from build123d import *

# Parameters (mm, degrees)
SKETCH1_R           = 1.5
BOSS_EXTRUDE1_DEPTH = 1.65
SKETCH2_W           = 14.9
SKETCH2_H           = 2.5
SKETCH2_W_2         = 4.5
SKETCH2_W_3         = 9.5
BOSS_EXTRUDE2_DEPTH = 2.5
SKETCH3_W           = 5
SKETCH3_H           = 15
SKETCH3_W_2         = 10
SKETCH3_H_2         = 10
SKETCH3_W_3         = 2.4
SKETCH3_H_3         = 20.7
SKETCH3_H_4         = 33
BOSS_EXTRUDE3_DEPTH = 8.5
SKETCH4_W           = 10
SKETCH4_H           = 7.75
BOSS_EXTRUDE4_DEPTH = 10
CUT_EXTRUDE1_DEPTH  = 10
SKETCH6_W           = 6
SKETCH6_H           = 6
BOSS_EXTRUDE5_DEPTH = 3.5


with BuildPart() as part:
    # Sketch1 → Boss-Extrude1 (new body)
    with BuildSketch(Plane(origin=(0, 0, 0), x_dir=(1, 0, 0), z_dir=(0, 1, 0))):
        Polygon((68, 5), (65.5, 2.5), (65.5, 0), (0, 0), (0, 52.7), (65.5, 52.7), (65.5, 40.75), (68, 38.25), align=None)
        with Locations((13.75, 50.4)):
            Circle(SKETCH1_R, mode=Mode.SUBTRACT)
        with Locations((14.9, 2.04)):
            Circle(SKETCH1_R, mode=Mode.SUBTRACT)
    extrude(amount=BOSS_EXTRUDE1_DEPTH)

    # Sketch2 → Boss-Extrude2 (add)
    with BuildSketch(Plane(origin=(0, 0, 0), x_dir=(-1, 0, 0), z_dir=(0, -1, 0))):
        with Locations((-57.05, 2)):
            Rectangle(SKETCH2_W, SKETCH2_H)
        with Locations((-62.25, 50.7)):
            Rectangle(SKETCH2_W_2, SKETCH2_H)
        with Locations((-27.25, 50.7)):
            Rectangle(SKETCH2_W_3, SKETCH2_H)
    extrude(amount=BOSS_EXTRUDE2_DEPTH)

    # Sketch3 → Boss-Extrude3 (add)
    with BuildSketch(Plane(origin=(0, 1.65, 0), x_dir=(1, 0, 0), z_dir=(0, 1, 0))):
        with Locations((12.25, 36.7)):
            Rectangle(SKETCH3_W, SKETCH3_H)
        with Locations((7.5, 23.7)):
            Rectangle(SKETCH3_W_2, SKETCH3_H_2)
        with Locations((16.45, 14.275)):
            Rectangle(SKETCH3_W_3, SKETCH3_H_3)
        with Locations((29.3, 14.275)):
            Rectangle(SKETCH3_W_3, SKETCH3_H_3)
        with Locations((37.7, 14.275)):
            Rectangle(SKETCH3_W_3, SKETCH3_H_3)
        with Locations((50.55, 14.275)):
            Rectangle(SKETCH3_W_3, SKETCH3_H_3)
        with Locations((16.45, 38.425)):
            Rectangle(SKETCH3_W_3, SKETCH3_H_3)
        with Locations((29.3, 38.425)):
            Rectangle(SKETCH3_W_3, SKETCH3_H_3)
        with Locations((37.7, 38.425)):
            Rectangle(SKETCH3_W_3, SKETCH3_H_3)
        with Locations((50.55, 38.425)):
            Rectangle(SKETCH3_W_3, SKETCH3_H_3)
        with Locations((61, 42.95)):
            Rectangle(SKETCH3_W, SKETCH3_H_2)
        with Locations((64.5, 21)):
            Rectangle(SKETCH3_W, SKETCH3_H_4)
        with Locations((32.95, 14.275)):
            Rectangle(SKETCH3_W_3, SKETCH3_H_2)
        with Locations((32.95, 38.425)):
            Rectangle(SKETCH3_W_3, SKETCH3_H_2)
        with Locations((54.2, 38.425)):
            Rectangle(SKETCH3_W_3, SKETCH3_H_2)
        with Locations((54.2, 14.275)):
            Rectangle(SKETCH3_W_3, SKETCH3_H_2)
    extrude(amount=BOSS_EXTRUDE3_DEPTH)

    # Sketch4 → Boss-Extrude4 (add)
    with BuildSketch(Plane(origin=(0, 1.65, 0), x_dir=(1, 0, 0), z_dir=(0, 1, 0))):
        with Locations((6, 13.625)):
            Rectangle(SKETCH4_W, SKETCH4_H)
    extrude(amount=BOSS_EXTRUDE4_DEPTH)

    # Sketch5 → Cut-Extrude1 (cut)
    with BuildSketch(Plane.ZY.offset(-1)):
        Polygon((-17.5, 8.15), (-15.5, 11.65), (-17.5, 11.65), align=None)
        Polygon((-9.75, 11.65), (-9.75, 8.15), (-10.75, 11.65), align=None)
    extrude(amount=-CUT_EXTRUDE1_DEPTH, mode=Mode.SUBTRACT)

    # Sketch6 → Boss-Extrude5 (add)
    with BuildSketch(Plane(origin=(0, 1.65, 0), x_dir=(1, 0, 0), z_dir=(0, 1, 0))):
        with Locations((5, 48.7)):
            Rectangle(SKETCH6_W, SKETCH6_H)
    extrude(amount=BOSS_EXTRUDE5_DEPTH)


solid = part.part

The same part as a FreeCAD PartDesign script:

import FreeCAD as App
import Part
import Sketcher

V = App.Vector


def add_polygon(sketch, points):
    """Adds a closed chain of lines whose ends are joined by coincident constraints."""
    first, n = sketch.GeometryCount, len(points)
    for a, b in zip(points, points[1:] + points[:1]):
        sketch.addGeometry(Part.LineSegment(App.Vector(*a, 0), App.Vector(*b, 0)), False)
    for i in range(n):
        sketch.addConstraint(Sketcher.Constraint("Coincident", first + i, 2, first + (i + 1) % n, 1))

doc = App.newDocument("Part")
body = doc.addObject("PartDesign::Body", "Body")

# Sketch on XZ plane
sketch1 = body.newObject("Sketcher::SketchObject", "Sketch")
sketch1.AttachmentSupport = (doc.getObject("XZ_Plane"), [""])
sketch1.MapMode = "FlatFace"
add_polygon(sketch1, [(65.5, -2.5), (68, -5), (68, -38.25), (65.5, -40.75), (65.5, -52.7), (0, -52.7), (0, 0), (65.5, 0)])  # lines 0-7
sketch1.addGeometry(Part.Circle(V(14.9, -2.04, 0), V(0, 0, 1), 1.5), False)  # 8
sketch1.addGeometry(Part.Circle(V(13.75, -50.4, 0), V(0, 0, 1), 1.5), False)  # 9
sketch1.addConstraint([
    Sketcher.Constraint("Vertical", 1),
    Sketcher.Constraint("Vertical", 3),
    Sketcher.Constraint("Horizontal", 4),
    Sketcher.Constraint("Vertical", 5),
    Sketcher.Constraint("Horizontal", 6),
    Sketcher.Constraint("Vertical", 7),
    Sketcher.Constraint("Coincident", 5, 2, -1, 1),
    Sketcher.Constraint("Equal", 8, 9),
    Sketcher.Constraint("Perpendicular", 0, 2),
    Sketcher.Constraint("Vertical", 3, 2, 6, 2),
    Sketcher.Constraint("Equal", 0, 2),
    Sketcher.Constraint("Diameter", 8, 3.0),
    Sketcher.Constraint("DistanceX", 4, 2, 4, 1, 65.5),
    Sketcher.Constraint("DistanceY", 5, 1, 5, 2, 52.7),
    Sketcher.Constraint("DistanceY", 7, 2, 7, 1, 2.5),
    Sketcher.Constraint("DistanceX", -1, 1, 0, 2, 68.0),
    Sketcher.Constraint("DistanceY", 1, 2, 1, 1, 33.25),
    Sketcher.Constraint("DistanceX", -1, 1, 8, 3, 14.9),
    Sketcher.Constraint("DistanceY", 9, 3, -1, 1, 50.4),
    Sketcher.Constraint("DistanceY", 8, 3, -1, 1, 2.04),
    Sketcher.Constraint("DistanceX", -1, 1, 9, 3, 13.75),
])
pad1 = body.newObject("PartDesign::Pad", "Pad")
pad1.Profile = sketch1
pad1.Length = 1.65
pad1.Reversed = True

# Sketch on XZ plane
sketch2 = body.newObject("Sketcher::SketchObject", "Sketch001")
sketch2.AttachmentSupport = (doc.getObject("XZ_Plane"), [""])
sketch2.MapMode = "FlatFace"
add_polygon(sketch2, [(64.5, -3.25), (64.5, -0.75), (49.6, -0.75), (49.6, -3.25)])  # lines 0-3
add_polygon(sketch2, [(64.5, -51.95), (64.5, -49.45), (60, -49.45), (60, -51.95)])  # lines 4-7
add_polygon(sketch2, [(32, -51.95), (32, -49.45), (22.5, -49.45), (22.5, -51.95)])  # lines 8-11
sketch2.addConstraint([
    Sketcher.Constraint("Vertical", 0),
    Sketcher.Constraint("Horizontal", 1),
    Sketcher.Constraint("Vertical", 2),
    Sketcher.Constraint("Horizontal", 3),
    Sketcher.Constraint("Vertical", 4),
    Sketcher.Constraint("Horizontal", 5),
    Sketcher.Constraint("Vertical", 6),
    Sketcher.Constraint("Horizontal", 7),
    Sketcher.Constraint("Vertical", 8),
    Sketcher.Constraint("Horizontal", 9),
    Sketcher.Constraint("Vertical", 10),
    Sketcher.Constraint("Horizontal", 11),
    Sketcher.Constraint("Horizontal", 5, 2, 8, 2),
    Sketcher.Constraint("Horizontal", 7, 2, 10, 2),
    Sketcher.Constraint("Vertical", 3, 2, 4, 2),
    Sketcher.Constraint("Equal", 2, 4),
    Sketcher.Constraint("DistanceX", 1, 2, 1, 1, 14.9),
    Sketcher.Constraint("DistanceX", 5, 2, 5, 1, 4.5),
    Sketcher.Constraint("DistanceX", 9, 2, 9, 1, 9.5),
    Sketcher.Constraint("DistanceY", 0, 1, 0, 2, 2.5),
    Sketcher.Constraint("DistanceX", -1, 1, 5, 2, 60.0),
    Sketcher.Constraint("DistanceX", -1, 1, 8, 2, 32.0),
    Sketcher.Constraint("DistanceY", 4, 2, 3, 2, 46.2),
    Sketcher.Constraint("DistanceY", 0, 2, -1, 1, 0.75),
])
pad2 = body.newObject("PartDesign::Pad", "Pad001")
pad2.Profile = sketch2
pad2.Length = 2.5

# Sketch on XZ plane
sketch3 = body.newObject("Sketcher::SketchObject", "Sketch002")
sketch3.AttachmentSupport = (doc.getObject("XZ_Plane"), [""])
sketch3.MapMode = "FlatFace"
sketch3.AttachmentOffset = App.Placement(V(0, 0, -1.65), App.Rotation())
add_polygon(sketch3, [(9.75, -44.2), (9.75, -29.2), (14.75, -29.2), (14.75, -44.2)])  # lines 0-3
add_polygon(sketch3, [(2.5, -28.7), (2.5, -18.7), (12.5, -18.7), (12.5, -28.7)])  # lines 4-7
add_polygon(sketch3, [(15.25, -24.625), (15.25, -3.925), (17.65, -3.925), (17.65, -24.625)])  # lines 8-11
add_polygon(sketch3, [(28.1, -24.625), (28.1, -3.925), (30.5, -3.925), (30.5, -24.625)])  # lines 12-15
add_polygon(sketch3, [(36.5, -24.625), (36.5, -3.925), (38.9, -3.925), (38.9, -24.625)])  # lines 16-19
add_polygon(sketch3, [(49.35, -24.625), (49.35, -3.925), (51.75, -3.925), (51.75, -24.625)])  # lines 20-23
add_polygon(sketch3, [(15.25, -48.775), (15.25, -28.075), (17.65, -28.075), (17.65, -48.775)])  # lines 24-27
add_polygon(sketch3, [(28.1, -48.775), (28.1, -28.075), (30.5, -28.075), (30.5, -48.775)])  # lines 28-31
add_polygon(sketch3, [(36.5, -48.775), (36.5, -28.075), (38.9, -28.075), (38.9, -48.775)])  # lines 32-35
add_polygon(sketch3, [(49.35, -48.775), (49.35, -28.075), (51.75, -28.075), (51.75, -48.775)])  # lines 36-39
add_polygon(sketch3, [(58.5, -47.95), (58.5, -37.95), (63.5, -37.95), (63.5, -47.95)])  # lines 40-43
add_polygon(sketch3, [(62, -37.5), (62, -4.5), (67, -4.5), (67, -37.5)])  # lines 44-47
add_polygon(sketch3, [(31.75, -19.275), (31.75, -9.275), (34.15, -9.275), (34.15, -19.275)])  # lines 48-51
add_polygon(sketch3, [(31.75, -43.425), (31.75, -33.425), (34.15, -33.425), (34.15, -43.425)])  # lines 52-55
add_polygon(sketch3, [(53, -43.425), (53, -33.425), (55.4, -33.425), (55.4, -43.425)])  # lines 56-59
add_polygon(sketch3, [(53, -19.275), (53, -9.275), (55.4, -9.275), (55.4, -19.275)])  # lines 60-63
sketch3.addConstraint([
    Sketcher.Constraint("Vertical", 0),
    Sketcher.Constraint("Horizontal", 1),
    Sketcher.Constraint("Vertical", 2),
    Sketcher.Constraint("Horizontal", 3),
    Sketcher.Constraint("Vertical", 4),
    Sketcher.Constraint("Horizontal", 5),
    Sketcher.Constraint("Vertical", 6),
    Sketcher.Constraint("Horizontal", 7),
    Sketcher.Constraint("Vertical", 8),
    Sketcher.Constraint("Horizontal", 9),
    Sketcher.Constraint("Vertical", 10),
    Sketcher.Constraint("Horizontal", 11),
    Sketcher.Constraint("Vertical", 12),
    Sketcher.Constraint("Horizontal", 13),
    Sketcher.Constraint("Vertical", 14),
    Sketcher.Constraint("Horizontal", 15),
    Sketcher.Constraint("Vertical", 16),
    Sketcher.Constraint("Horizontal", 17),
    Sketcher.Constraint("Vertical", 18),
    Sketcher.Constraint("Horizontal", 19),
    Sketcher.Constraint("Vertical", 20),
    Sketcher.Constraint("Horizontal", 21),
    Sketcher.Constraint("Vertical", 22),
    Sketcher.Constraint("Horizontal", 23),
    Sketcher.Constraint("Vertical", 24),
    Sketcher.Constraint("Horizontal", 25),
    Sketcher.Constraint("Vertical", 26),
    Sketcher.Constraint("Horizontal", 27),
    Sketcher.Constraint("Vertical", 28),
    Sketcher.Constraint("Horizontal", 29),
    Sketcher.Constraint("Vertical", 30),
    Sketcher.Constraint("Horizontal", 31),
    Sketcher.Constraint("Vertical", 32),
    Sketcher.Constraint("Horizontal", 33),
    Sketcher.Constraint("Vertical", 34),
    Sketcher.Constraint("Horizontal", 35),
    Sketcher.Constraint("Vertical", 36),
    Sketcher.Constraint("Horizontal", 37),
    Sketcher.Constraint("Vertical", 38),
    Sketcher.Constraint("Horizontal", 39),
    Sketcher.Constraint("Vertical", 40),
    Sketcher.Constraint("Horizontal", 41),
    Sketcher.Constraint("Vertical", 42),
    Sketcher.Constraint("Horizontal", 43),
    Sketcher.Constraint("Vertical", 44),
    Sketcher.Constraint("Horizontal", 45),
    Sketcher.Constraint("Vertical", 46),
    Sketcher.Constraint("Horizontal", 47),
    Sketcher.Constraint("Vertical", 48),
    Sketcher.Constraint("Horizontal", 49),
    Sketcher.Constraint("Vertical", 50),
    Sketcher.Constraint("Horizontal", 51),
    Sketcher.Constraint("Vertical", 52),
    Sketcher.Constraint("Horizontal", 53),
    Sketcher.Constraint("Vertical", 54),
    Sketcher.Constraint("Horizontal", 55),
    Sketcher.Constraint("Vertical", 56),
    Sketcher.Constraint("Horizontal", 57),
    Sketcher.Constraint("Vertical", 58),
    Sketcher.Constraint("Horizontal", 59),
    Sketcher.Constraint("Vertical", 60),
    Sketcher.Constraint("Horizontal", 61),
    Sketcher.Constraint("Vertical", 62),
    Sketcher.Constraint("Horizontal", 63),
    Sketcher.Constraint("Horizontal", 9, 2, 12, 2),
    Sketcher.Constraint("Horizontal", 11, 2, 14, 2),
    Sketcher.Constraint("Horizontal", 13, 2, 16, 2),
    Sketcher.Constraint("Horizontal", 15, 2, 18, 2),
    Sketcher.Constraint("Horizontal", 17, 2, 20, 2),
    Sketcher.Constraint("Horizontal", 19, 2, 22, 2),
    Sketcher.Constraint("Horizontal", 25, 2, 28, 2),
    Sketcher.Constraint("Horizontal", 27, 2, 30, 2),
    Sketcher.Constraint("Horizontal", 29, 2, 32, 2),
    Sketcher.Constraint("Horizontal", 31, 2, 34, 2),
    Sketcher.Constraint("Horizontal", 33, 2, 36, 2),
    Sketcher.Constraint("Horizontal", 35, 2, 38, 2),
    Sketcher.Constraint("Horizontal", 53, 2, 56, 2),
    Sketcher.Constraint("Horizontal", 55, 2, 58, 2),
    Sketcher.Constraint("Horizontal", 49, 2, 60, 2),
    Sketcher.Constraint("Horizontal", 51, 2, 62, 2),
    Sketcher.Constraint("Vertical", 11, 2, 24, 2),
    Sketcher.Constraint("Vertical", 10, 2, 25, 2),
    Sketcher.Constraint("Vertical", 15, 2, 28, 2),
    Sketcher.Constraint("Vertical", 14, 2, 29, 2),
    Sketcher.Constraint("Vertical", 19, 2, 32, 2),
    Sketcher.Constraint("Vertical", 18, 2, 33, 2),
    Sketcher.Constraint("Vertical", 23, 2, 36, 2),
    Sketcher.Constraint("Vertical", 22, 2, 37, 2),
    Sketcher.Constraint("Vertical", 51, 2, 52, 2),
    Sketcher.Constraint("Vertical", 50, 2, 53, 2),
    Sketcher.Constraint("Vertical", 59, 2, 60, 2),
    Sketcher.Constraint("Vertical", 58, 2, 61, 2),
    Sketcher.Constraint("Equal", 11, 13),
    Sketcher.Constraint("Equal", 15, 17),
    Sketcher.Constraint("Equal", 19, 21),
    Sketcher.Constraint("Equal", 3, 41),
    Sketcher.Constraint("Equal", 43, 45),
    Sketcher.Constraint("Equal", 39, 49),
    Sketcher.Constraint("Equal", 55, 57),
    Sketcher.Constraint("Equal", 7, 4),
    Sketcher.Constraint("Equal", 22, 24),
    Sketcher.Constraint("Equal", 6, 40),
    Sketcher.Constraint("Equal", 42, 48),
    Sketcher.Constraint("Equal", 50, 52),
    Sketcher.Constraint("DistanceX", 1, 1, 1, 2, 5.0),
    Sketcher.Constraint("DistanceX", 5, 1, 5, 2, 10.0),
    Sketcher.Constraint("DistanceY", 0, 1, 0, 2, 15.0),
    Sketcher.Constraint("DistanceY", 44, 1, 44, 2, 33.0),
    Sketcher.Constraint("DistanceX", 9, 1, 9, 2, 2.4),
    Sketcher.Constraint("DistanceY", 8, 1, 8, 2, 20.7),
    Sketcher.Constraint("DistanceX", -1, 1, 44, 2, 62.0),
    Sketcher.Constraint("DistanceX", -1, 1, 56, 2, 53.0),
    Sketcher.Constraint("DistanceY", 0, 2, -1, 1, 29.2),
    Sketcher.Constraint("DistanceX", -1, 1, 4, 2, 2.5),
    Sketcher.Constraint("DistanceY", 4, 2, -1, 1, 18.7),
    Sketcher.Constraint("DistanceX", -1, 1, 12, 2, 28.1),
    Sketcher.Constraint("DistanceX", -1, 1, 16, 2, 36.5),
    Sketcher.Constraint("DistanceX", -1, 1, 40, 2, 58.5),
    Sketcher.Constraint("DistanceY", 44, 2, -1, 1, 4.5),
    Sketcher.Constraint("DistanceX", -1, 1, 0, 2, 9.75),
    Sketcher.Constraint("DistanceX", -1, 1, 8, 2, 15.25),
    Sketcher.Constraint("DistanceX", -1, 1, 20, 2, 49.35),
    Sketcher.Constraint("DistanceY", 40, 2, -1, 1, 37.95),
    Sketcher.Constraint("DistanceX", -1, 1, 48, 2, 31.75),
    Sketcher.Constraint("DistanceY", 8, 2, -1, 1, 3.925),
    Sketcher.Constraint("DistanceY", 24, 2, -1, 1, 28.075),
    Sketcher.Constraint("DistanceY", 48, 2, -1, 1, 9.275),
    Sketcher.Constraint("DistanceY", 52, 2, -1, 1, 33.425),
])
pad3 = body.newObject("PartDesign::Pad", "Pad002")
pad3.Profile = sketch3
pad3.Length = 8.5
pad3.Reversed = True

# Sketch on XZ plane
sketch4 = body.newObject("Sketcher::SketchObject", "Sketch003")
sketch4.AttachmentSupport = (doc.getObject("XZ_Plane"), [""])
sketch4.MapMode = "FlatFace"
sketch4.AttachmentOffset = App.Placement(V(0, 0, -1.65), App.Rotation())
add_polygon(sketch4, [(1, -17.5), (1, -9.75), (11, -9.75), (11, -17.5)])  # lines 0-3
sketch4.addConstraint([
    Sketcher.Constraint("Vertical", 0),
    Sketcher.Constraint("Horizontal", 1),
    Sketcher.Constraint("Vertical", 2),
    Sketcher.Constraint("Horizontal", 3),
    Sketcher.Constraint("DistanceX", 1, 1, 1, 2, 10.0),
    Sketcher.Constraint("DistanceX", -1, 1, 0, 2, 1.0),
    Sketcher.Constraint("DistanceY", 0, 1, 0, 2, 7.75),
    Sketcher.Constraint("DistanceY", 2, 2, -1, 1, 17.5),
])
pad4 = body.newObject("PartDesign::Pad", "Pad003")
pad4.Profile = sketch4
pad4.Length = 10
pad4.Reversed = True

# Sketch on YZ plane
sketch5 = body.newObject("Sketcher::SketchObject", "Sketch004")
sketch5.AttachmentSupport = (doc.getObject("YZ_Plane"), [""])
sketch5.MapMode = "FlatFace"
sketch5.AttachmentOffset = App.Placement(V(0, 0, 1), App.Rotation())
add_polygon(sketch5, [(8.15, -17.5), (11.65, -15.5), (11.65, -17.5)])  # lines 0-2
add_polygon(sketch5, [(8.15, -9.75), (11.65, -9.75), (11.65, -10.75)])  # lines 3-5
sketch5.addConstraint([
    Sketcher.Constraint("Vertical", 1),
    Sketcher.Constraint("Horizontal", 2),
    Sketcher.Constraint("Horizontal", 3),
    Sketcher.Constraint("Vertical", 4),
    Sketcher.Constraint("Vertical", 1, 2, 3, 2),
    Sketcher.Constraint("Vertical", 2, 2, 5, 2),
    Sketcher.Constraint("DistanceY", 1, 2, 1, 1, 2.0),
    Sketcher.Constraint("DistanceY", 4, 2, 4, 1, 1.0),
    Sketcher.Constraint("DistanceX", 2, 2, 2, 1, 3.5),
    Sketcher.Constraint("DistanceY", 0, 2, -1, 1, 15.5),
    Sketcher.Constraint("DistanceX", -1, 1, 0, 2, 11.65),
    Sketcher.Constraint("DistanceY", 3, 2, -1, 1, 9.75),
])
pocket1 = body.newObject("PartDesign::Pocket", "Pocket")
pocket1.Profile = sketch5
pocket1.Length = 10
pocket1.Reversed = True

# Sketch on XZ plane
sketch6 = body.newObject("Sketcher::SketchObject", "Sketch005")
sketch6.AttachmentSupport = (doc.getObject("XZ_Plane"), [""])
sketch6.MapMode = "FlatFace"
sketch6.AttachmentOffset = App.Placement(V(0, 0, -1.65), App.Rotation())
add_polygon(sketch6, [(2, -51.7), (2, -45.7), (8, -45.7), (8, -51.7)])  # lines 0-3
sketch6.addConstraint([
    Sketcher.Constraint("Vertical", 0),
    Sketcher.Constraint("Horizontal", 1),
    Sketcher.Constraint("Vertical", 2),
    Sketcher.Constraint("Horizontal", 3),
    Sketcher.Constraint("Equal", 3, 0),
    Sketcher.Constraint("DistanceX", 1, 1, 1, 2, 6.0),
    Sketcher.Constraint("DistanceX", -1, 1, 0, 2, 2.0),
    Sketcher.Constraint("DistanceY", 0, 2, -1, 1, 45.7),
])
pad5 = body.newObject("PartDesign::Pad", "Pad004")
pad5.Profile = sketch6
pad5.Length = 3.5
pad5.Reversed = True

doc.recompute()
